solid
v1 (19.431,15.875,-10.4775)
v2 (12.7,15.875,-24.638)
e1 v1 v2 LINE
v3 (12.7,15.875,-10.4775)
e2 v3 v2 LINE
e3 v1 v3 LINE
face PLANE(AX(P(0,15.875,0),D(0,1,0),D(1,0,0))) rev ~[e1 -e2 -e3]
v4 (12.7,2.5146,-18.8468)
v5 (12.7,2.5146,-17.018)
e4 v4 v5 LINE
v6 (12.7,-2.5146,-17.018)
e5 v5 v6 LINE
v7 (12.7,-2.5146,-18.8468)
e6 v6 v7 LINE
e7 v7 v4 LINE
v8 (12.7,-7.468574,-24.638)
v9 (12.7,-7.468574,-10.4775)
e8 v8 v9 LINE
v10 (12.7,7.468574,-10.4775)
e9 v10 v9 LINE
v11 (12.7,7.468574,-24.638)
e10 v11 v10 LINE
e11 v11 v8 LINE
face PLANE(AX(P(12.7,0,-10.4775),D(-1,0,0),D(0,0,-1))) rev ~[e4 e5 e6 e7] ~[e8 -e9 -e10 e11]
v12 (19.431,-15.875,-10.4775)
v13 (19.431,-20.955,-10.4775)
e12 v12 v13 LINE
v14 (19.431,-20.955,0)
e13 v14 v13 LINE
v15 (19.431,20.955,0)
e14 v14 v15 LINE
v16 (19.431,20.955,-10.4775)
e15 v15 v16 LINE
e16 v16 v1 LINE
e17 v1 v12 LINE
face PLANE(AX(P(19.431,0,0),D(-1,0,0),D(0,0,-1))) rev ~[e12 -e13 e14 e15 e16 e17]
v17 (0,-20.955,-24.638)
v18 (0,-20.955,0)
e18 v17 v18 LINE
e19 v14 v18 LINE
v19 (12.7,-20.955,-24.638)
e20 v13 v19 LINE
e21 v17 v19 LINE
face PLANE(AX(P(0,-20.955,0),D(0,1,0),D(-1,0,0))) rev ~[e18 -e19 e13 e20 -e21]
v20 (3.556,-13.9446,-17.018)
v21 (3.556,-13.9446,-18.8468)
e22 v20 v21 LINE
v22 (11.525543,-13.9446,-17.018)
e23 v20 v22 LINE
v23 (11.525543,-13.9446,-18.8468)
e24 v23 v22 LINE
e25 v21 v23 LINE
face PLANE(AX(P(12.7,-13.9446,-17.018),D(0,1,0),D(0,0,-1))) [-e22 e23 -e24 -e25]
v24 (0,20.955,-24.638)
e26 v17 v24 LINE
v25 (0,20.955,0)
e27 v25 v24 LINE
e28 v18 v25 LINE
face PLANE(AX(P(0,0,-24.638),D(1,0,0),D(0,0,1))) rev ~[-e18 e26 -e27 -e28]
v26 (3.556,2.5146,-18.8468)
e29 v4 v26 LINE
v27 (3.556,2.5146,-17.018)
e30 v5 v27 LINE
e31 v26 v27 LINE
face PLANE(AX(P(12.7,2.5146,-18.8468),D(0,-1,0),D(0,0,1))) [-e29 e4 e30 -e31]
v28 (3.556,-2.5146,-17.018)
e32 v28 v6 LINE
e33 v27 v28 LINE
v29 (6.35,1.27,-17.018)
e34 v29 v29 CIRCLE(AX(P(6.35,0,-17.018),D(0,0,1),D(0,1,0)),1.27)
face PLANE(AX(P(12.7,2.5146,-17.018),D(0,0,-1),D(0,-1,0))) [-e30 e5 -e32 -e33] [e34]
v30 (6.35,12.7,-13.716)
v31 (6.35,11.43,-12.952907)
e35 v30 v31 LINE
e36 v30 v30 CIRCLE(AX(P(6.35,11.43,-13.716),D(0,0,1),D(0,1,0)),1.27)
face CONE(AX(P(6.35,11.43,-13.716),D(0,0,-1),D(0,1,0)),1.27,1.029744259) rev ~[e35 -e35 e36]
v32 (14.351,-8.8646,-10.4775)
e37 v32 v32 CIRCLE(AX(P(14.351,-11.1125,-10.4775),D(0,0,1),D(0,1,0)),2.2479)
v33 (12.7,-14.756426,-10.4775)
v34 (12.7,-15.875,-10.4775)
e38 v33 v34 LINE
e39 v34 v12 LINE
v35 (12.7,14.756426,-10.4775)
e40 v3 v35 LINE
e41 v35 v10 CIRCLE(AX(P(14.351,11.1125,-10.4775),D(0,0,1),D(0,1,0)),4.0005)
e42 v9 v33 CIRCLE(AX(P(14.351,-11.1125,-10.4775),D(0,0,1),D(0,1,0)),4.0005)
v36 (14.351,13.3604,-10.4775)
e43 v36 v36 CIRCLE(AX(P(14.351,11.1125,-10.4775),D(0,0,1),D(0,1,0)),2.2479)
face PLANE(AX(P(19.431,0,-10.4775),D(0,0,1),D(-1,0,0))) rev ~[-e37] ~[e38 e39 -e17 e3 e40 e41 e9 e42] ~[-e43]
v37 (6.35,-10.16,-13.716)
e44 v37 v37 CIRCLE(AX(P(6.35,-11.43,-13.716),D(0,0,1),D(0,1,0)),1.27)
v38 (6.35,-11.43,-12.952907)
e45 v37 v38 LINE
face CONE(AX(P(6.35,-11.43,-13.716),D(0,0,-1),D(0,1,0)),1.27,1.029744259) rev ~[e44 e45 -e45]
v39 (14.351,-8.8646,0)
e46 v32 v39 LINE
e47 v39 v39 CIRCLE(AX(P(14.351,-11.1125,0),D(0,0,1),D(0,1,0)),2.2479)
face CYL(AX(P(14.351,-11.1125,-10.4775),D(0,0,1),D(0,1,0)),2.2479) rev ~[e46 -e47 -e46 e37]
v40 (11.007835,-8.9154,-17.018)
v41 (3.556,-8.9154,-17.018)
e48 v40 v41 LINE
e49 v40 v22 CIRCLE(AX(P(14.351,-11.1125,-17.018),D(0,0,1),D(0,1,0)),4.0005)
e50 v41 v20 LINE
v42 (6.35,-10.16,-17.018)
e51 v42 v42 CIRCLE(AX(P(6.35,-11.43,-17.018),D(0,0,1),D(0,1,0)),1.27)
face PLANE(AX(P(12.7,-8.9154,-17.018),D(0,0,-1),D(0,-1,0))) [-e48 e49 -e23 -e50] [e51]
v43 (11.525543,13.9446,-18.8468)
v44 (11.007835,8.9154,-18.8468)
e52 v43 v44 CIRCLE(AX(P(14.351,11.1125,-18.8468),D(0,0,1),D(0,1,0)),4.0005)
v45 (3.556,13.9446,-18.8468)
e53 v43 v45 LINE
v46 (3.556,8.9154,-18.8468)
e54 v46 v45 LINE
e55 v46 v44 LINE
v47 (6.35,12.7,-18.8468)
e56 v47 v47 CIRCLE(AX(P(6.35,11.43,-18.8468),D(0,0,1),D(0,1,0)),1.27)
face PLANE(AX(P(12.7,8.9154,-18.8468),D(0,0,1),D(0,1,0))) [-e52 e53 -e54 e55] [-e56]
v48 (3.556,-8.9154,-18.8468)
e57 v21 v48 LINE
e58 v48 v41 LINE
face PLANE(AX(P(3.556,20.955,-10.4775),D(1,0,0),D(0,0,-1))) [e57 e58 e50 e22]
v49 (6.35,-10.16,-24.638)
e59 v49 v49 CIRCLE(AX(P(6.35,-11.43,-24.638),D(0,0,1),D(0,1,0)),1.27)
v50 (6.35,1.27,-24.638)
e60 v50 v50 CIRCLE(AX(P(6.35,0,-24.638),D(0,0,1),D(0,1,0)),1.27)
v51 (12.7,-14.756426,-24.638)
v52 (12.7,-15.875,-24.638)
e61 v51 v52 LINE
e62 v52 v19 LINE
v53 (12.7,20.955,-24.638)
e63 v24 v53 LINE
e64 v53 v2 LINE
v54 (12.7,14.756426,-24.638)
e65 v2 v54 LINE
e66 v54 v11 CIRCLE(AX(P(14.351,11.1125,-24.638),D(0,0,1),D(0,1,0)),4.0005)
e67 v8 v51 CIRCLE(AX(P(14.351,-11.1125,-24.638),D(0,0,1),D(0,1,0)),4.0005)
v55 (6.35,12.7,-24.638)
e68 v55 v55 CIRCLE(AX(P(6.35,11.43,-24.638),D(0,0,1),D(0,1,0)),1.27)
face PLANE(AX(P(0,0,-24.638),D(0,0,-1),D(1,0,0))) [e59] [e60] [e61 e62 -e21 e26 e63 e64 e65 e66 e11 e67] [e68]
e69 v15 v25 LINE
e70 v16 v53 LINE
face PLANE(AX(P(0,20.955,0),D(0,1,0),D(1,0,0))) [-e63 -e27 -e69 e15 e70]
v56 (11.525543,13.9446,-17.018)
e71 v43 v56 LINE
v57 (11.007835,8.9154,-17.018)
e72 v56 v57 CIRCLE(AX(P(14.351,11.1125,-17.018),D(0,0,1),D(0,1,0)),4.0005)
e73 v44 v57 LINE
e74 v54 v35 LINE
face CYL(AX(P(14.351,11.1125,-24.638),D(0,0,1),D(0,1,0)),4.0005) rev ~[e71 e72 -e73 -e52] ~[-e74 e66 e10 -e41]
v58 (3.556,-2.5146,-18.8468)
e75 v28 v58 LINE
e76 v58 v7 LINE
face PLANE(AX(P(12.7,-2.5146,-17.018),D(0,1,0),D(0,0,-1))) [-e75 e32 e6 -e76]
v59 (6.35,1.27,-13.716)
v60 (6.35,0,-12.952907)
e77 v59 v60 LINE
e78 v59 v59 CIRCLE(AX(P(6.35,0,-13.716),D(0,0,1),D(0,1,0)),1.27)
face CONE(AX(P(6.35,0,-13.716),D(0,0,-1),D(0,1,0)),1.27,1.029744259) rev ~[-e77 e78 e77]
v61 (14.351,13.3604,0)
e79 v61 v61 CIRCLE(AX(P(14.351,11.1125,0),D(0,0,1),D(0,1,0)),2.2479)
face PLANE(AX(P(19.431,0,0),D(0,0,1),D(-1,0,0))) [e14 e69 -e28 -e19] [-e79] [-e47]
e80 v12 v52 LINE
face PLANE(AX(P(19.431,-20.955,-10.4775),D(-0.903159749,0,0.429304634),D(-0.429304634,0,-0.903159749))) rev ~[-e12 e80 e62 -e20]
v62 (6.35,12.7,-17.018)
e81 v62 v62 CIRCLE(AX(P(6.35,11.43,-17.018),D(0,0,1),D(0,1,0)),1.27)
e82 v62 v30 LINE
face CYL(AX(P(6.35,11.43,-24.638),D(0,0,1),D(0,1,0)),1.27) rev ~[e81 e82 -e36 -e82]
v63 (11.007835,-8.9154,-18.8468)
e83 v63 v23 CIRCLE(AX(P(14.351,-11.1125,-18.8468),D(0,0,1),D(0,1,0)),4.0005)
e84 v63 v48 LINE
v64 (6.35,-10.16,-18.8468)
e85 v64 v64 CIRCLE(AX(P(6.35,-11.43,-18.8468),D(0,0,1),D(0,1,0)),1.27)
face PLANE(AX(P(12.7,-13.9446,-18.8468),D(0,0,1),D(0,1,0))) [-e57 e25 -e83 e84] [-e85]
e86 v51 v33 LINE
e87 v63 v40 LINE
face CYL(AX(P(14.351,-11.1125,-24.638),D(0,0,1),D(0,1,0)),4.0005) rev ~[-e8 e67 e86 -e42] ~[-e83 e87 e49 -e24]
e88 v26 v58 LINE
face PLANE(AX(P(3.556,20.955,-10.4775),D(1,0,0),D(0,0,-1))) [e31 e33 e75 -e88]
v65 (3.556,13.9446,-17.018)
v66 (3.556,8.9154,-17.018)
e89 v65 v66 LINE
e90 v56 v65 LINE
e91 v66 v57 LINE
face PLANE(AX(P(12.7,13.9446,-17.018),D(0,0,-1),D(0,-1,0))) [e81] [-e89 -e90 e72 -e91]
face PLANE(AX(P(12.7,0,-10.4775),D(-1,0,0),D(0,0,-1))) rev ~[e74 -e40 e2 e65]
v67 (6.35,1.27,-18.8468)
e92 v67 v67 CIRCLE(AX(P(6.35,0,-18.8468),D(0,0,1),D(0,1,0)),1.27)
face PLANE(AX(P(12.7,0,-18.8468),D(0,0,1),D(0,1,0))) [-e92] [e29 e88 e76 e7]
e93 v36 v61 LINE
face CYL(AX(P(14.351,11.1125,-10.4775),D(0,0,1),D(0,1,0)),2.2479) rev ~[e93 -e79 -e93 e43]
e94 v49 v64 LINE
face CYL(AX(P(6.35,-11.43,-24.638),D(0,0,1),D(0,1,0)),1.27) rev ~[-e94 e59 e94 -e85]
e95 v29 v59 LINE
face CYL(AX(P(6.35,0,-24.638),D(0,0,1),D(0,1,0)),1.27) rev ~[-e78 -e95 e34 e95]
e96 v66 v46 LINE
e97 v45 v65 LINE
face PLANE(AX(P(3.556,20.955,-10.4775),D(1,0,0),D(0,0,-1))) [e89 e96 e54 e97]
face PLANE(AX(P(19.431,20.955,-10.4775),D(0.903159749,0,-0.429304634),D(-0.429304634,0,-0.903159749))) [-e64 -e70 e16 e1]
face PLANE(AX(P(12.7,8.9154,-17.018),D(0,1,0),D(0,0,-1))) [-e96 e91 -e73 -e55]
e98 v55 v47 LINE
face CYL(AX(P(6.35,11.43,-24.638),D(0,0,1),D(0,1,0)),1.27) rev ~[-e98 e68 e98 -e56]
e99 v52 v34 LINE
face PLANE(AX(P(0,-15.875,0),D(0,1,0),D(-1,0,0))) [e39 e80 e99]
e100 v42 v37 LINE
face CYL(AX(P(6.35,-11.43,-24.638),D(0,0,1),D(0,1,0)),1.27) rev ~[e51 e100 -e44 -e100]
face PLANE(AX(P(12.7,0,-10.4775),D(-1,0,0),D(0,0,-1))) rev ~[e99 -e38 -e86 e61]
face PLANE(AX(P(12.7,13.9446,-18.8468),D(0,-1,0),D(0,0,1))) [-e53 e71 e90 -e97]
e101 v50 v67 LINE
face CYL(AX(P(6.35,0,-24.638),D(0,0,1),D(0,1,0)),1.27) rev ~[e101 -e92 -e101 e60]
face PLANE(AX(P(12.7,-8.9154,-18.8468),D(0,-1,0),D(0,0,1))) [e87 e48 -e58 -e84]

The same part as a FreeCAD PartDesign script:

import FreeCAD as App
import Part
import Sketcher
Q = App.Units.Quantity

doc = App.newDocument("Part")
body = doc.addObject("PartDesign::Body", "Body")

# Sketch on XZ plane
sketch1 = body.newObject("Sketcher::SketchObject", "Sketch")
sketch1.AttachmentSupport = (doc.getObject("XZ_Plane"), [""])
sketch1.MapMode = "FlatFace"
sketch1.addGeometry([
    Part.LineSegment(App.Vector(12.7, -24.638, 0), App.Vector(0, -24.638, 0)),  # 0
    Part.LineSegment(App.Vector(0, -24.638, 0), App.Vector(0, 0, 0)),  # 1
    Part.LineSegment(App.Vector(0, 0, 0), App.Vector(19.431, 0, 0)),  # 2
    Part.LineSegment(App.Vector(19.431, 0, 0), App.Vector(19.431, -10.4775, 0)),  # 3
    Part.LineSegment(App.Vector(19.431, -10.4775, 0), App.Vector(12.7, -10.4775, 0)),  # 4
    Part.LineSegment(App.Vector(12.7, -10.4775, 0), App.Vector(12.7, -24.638, 0)),  # 5
], False)
sketch1.addConstraint([
    Sketcher.Constraint("Coincident", 0, 2, 1, 1),
    Sketcher.Constraint("Coincident", 1, 2, 2, 1),
    Sketcher.Constraint("Coincident", 2, 2, 3, 1),
    Sketcher.Constraint("Coincident", 3, 2, 4, 1),
    Sketcher.Constraint("Coincident", 4, 2, 5, 1),
    Sketcher.Constraint("Coincident", 5, 2, 0, 1),
    Sketcher.Constraint("Horizontal", 0),
    Sketcher.Constraint("Vertical", 1),
    Sketcher.Constraint("Horizontal", 2),
    Sketcher.Constraint("Vertical", 3),
    Sketcher.Constraint("Horizontal", 4),
    Sketcher.Constraint("Vertical", 5),
    Sketcher.Constraint("Coincident", 1, 2, -1, 1),
    Sketcher.Constraint("DistanceX", 0, 2, 0, 1, Q("0.5 in")),
    Sketcher.Constraint("DistanceY", 1, 1, 1, 2, Q("0.97 in")),
    Sketcher.Constraint("DistanceX", 2, 1, 2, 2, Q("0.765 in")),
    Sketcher.Constraint("DistanceY", 3, 2, 3, 1, Q("0.4125 in")),
])
pad1 = body.newObject("PartDesign::Pad", "Pad")
pad1.Profile = sketch1
pad1.Length = Q("1.65 in")
pad1.Midplane = True

# Sketch on XY plane
sketch2 = body.newObject("Sketcher::SketchObject", "Sketch001")
sketch2.AttachmentSupport = (doc.getObject("XY_Plane"), [""])
sketch2.MapMode = "FlatFace"
sketch2.AttachmentOffset = App.Placement(App.Vector(0, 0, -0.97 * 25.4), App.Rotation())
sketch2.addGeometry([
    Part.Circle(App.Vector(14.351, 11.1125, 0), App.Vector(0, 0, 1), 2.2479),
    Part.Circle(App.Vector(14.351, -11.1125, 0), App.Vector(0, 0, 1), 2.2479),
], False)
sketch2.addConstraint([
    Sketcher.Constraint("Equal", 0, 1),
    Sketcher.Constraint("Symmetric", 0, 3, 1, 3, -1),
    Sketcher.Constraint("Diameter", 0, Q("0.177 in")),
    Sketcher.Constraint("DistanceX", -1, 1, 0, 3, Q("0.565 in")),
    Sketcher.Constraint("DistanceY", -1, 1, 0, 3, Q("0.4375 in")),
])
doc.recompute()
hole = body.newObject("PartDesign::Hole", "Hole")
hole.Profile = sketch2
hole.ThreadType = "None"
hole.Diameter = Q("0.177 in")
hole.DepthType = "ThroughAll"
hole.HoleCutType = "Counterbore"
hole.HoleCutDiameter = Q("0.315 in")
hole.HoleCutDepth = Q("0.5575 in")
hole.Reversed = True

# Sketch on XZ plane
sketch3 = body.newObject("Sketcher::SketchObject", "Sketch002")
sketch3.AttachmentSupport = (doc.getObject("XZ_Plane"), [""])
sketch3.MapMode = "FlatFace"
sketch3.AttachmentOffset = App.Placement(App.Vector(0, 0, 0.825 * 25.4), App.Rotation())
sketch3.addGeometry([
    Part.LineSegment(App.Vector(19.431, -10.4775, 0), App.Vector(12.7, -24.638, 0)),
    Part.LineSegment(App.Vector(12.7, -24.638, 0), App.Vector(12.7, -10.4775, 0)),
    Part.LineSegment(App.Vector(12.7, -10.4775, 0), App.Vector(19.431, -10.4775, 0)),
], False)
sketch3.addConstraint([
    Sketcher.Constraint("Coincident", 0, 2, 1, 1),
    Sketcher.Constraint("Coincident", 1, 2, 2, 1),
    Sketcher.Constraint("Coincident", 2, 2, 0, 1),
    Sketcher.Constraint("Vertical", 1),
    Sketcher.Constraint("Horizontal", 2),
    Sketcher.Constraint("DistanceX", -1, 1, 0, 2, Q("0.5 in")),
    Sketcher.Constraint("DistanceX", 2, 1, 2, 2, Q("0.265 in")),
    Sketcher.Constraint("DistanceY", 0, 2, -1, 1, Q("0.97 in")),
    Sketcher.Constraint("DistanceY", 1, 1, 1, 2, Q("0.5575 in")),
])
pad2 = body.newObject("PartDesign::Pad", "Pad001")
pad2.Profile = sketch3
pad2.Length = Q("0.2 in")
pad2.Reversed = True

# Sketch on XY plane
sketch4 = body.newObject("Sketcher::SketchObject", "Sketch003")
sketch4.AttachmentSupport = (doc.getObject("XY_Plane"), [""])
sketch4.MapMode = "FlatFace"
sketch4.AttachmentOffset = App.Placement(App.Vector(0, 0, -0.97 * 25.4), App.Rotation())
sketch4.addGeometry([
    Part.Circle(App.Vector(6.35, 11.43, 0), App.Vector(0, 0, 1), 1.27),
    Part.Circle(App.Vector(6.35, -11.43, 0), App.Vector(0, 0, 1), 1.27),
    Part.Circle(App.Vector(6.35, 0, 0), App.Vector(0, 0, 1), 1.27),
], False)
sketch4.addConstraint([
    Sketcher.Constraint("Equal", 0, 1),
    Sketcher.Constraint("Equal", 1, 2),
    Sketcher.Constraint("Symmetric", 0, 3, 1, 3, -1),
    Sketcher.Constraint("PointOnObject", 2, 3, -1),
    Sketcher.Constraint("Vertical", 1, 3, 2, 3),
    Sketcher.Constraint("Diameter", 0, Q("0.1 in")),
    Sketcher.Constraint("DistanceY", 1, 3, 0, 3, Q("0.9 in")),
    Sketcher.Constraint("DistanceX", -1, 1, 0, 3, Q("0.25 in")),
])
doc.recompute()
hole2 = body.newObject("PartDesign::Hole", "Hole001")
hole2.Profile = sketch4
hole2.ThreadType = "None"
hole2.Diameter = Q("0.1 in")
hole2.DepthType = "Dimension"
hole2.Depth = Q("0.43 in")
hole2.DrillPoint = "Angled"
hole2.DrillPointAngle = 118
hole2.Reversed = True

# Sketch on YZ plane
sketch5 = body.newObject("Sketcher::SketchObject", "Sketch004")
sketch5.AttachmentSupport = (doc.getObject("YZ_Plane"), [""])
sketch5.MapMode = "FlatFace"
sketch5.AttachmentOffset = App.Placement(App.Vector(0, 0, 0.5 * 25.4), App.Rotation())
sketch5.addGeometry([
    Part.LineSegment(App.Vector(2.5146, -17.018, 0), App.Vector(-2.5146, -17.018, 0)),  # 0
    Part.LineSegment(App.Vector(-2.5146, -17.018, 0), App.Vector(-2.5146, -18.8468, 0)),  # 1
    Part.LineSegment(App.Vector(-2.5146, -18.8468, 0), App.Vector(2.5146, -18.8468, 0)),  # 2
    Part.LineSegment(App.Vector(2.5146, -18.8468, 0), App.Vector(2.5146, -17.018, 0)),  # 3
    Part.LineSegment(App.Vector(13.9446, -17.018, 0), App.Vector(8.9154, -17.018, 0)),  # 4
    Part.LineSegment(App.Vector(8.9154, -17.018, 0), App.Vector(8.9154, -18.8468, 0)),  # 5
    Part.LineSegment(App.Vector(8.9154, -18.8468, 0), App.Vector(13.9446, -18.8468, 0)),  # 6
    Part.LineSegment(App.Vector(13.9446, -18.8468, 0), App.Vector(13.9446, -17.018, 0)),  # 7
    Part.LineSegment(App.Vector(-8.9154, -17.018, 0), App.Vector(-13.9446, -17.018, 0)),  # 8
    Part.LineSegment(App.Vector(-13.9446, -17.018, 0), App.Vector(-13.9446, -18.8468, 0)),  # 9
    Part.LineSegment(App.Vector(-13.9446, -18.8468, 0), App.Vector(-8.9154, -18.8468, 0)),  # 10
    Part.LineSegment(App.Vector(-8.9154, -18.8468, 0), App.Vector(-8.9154, -17.018, 0)),  # 11
], False)
sketch5.addConstraint([
    Sketcher.Constraint("Coincident", 0, 2, 1, 1),
    Sketcher.Constraint("Coincident", 1, 2, 2, 1),
    Sketcher.Constraint("Coincident", 2, 2, 3, 1),
    Sketcher.Constraint("Coincident", 3, 2, 0, 1),
    Sketcher.Constraint("Coincident", 4, 2, 5, 1),
    Sketcher.Constraint("Coincident", 5, 2, 6, 1),
    Sketcher.Constraint("Coincident", 6, 2, 7, 1),
    Sketcher.Constraint("Coincident", 7, 2, 4, 1),
    Sketcher.Constraint("Coincident", 8, 2, 9, 1),
    Sketcher.Constraint("Coincident", 9, 2, 10, 1),
    Sketcher.Constraint("Coincident", 10, 2, 11, 1),
    Sketcher.Constraint("Coincident", 11, 2, 8, 1),
    Sketcher.Constraint("Horizontal", 0),
    Sketcher.Constraint("Vertical", 1),
    Sketcher.Constraint("Horizontal", 2),
    Sketcher.Constraint("Vertical", 3),
    Sketcher.Constraint("Horizontal", 4),
    Sketcher.Constraint("Vertical", 5),
    Sketcher.Constraint("Horizontal", 6),
    Sketcher.Constraint("Vertical", 7),
    Sketcher.Constraint("Horizontal", 8),
    Sketcher.Constraint("Vertical", 9),
    Sketcher.Constraint("Horizontal", 10),
    Sketcher.Constraint("Vertical", 11),
    Sketcher.Constraint("Symmetric", 7, 2, 8, 2, -2),
    Sketcher.Constraint("Symmetric", 5, 2, 10, 2, -2),
    Sketcher.Constraint("Horizontal", 3, 2, 4, 2),
    Sketcher.Constraint("Horizontal", 2, 2, 5, 2),
    Sketcher.Constraint("Equal", 2, 4),
    Sketcher.Constraint("DistanceX", 0, 2, 0, 1, Q("0.198 in")),
    Sketcher.Constraint("DistanceY", 1, 2, 1, 1, Q("0.072 in")),
    Sketcher.Constraint("DistanceX", 0, 2, 4, 2, Q("0.45 in")),
    Sketcher.Constraint("DistanceX", 8, 2, 0, 2, Q("0.45 in")),
    Sketcher.Constraint("DistanceY", 0, 2, -1, 1, Q("0.67 in")),
])
pocket1 = body.newObject("PartDesign::Pocket", "Pocket")
pocket1.Profile = sketch5
pocket1.Type = "TwoLengths"
pocket1.Length = Q("0.4 in")
pocket1.Length2 = Q("0.36 in")
pocket1.Reversed = True

# Sketch on XZ plane
sketch6 = body.newObject("Sketcher::SketchObject", "Sketch005")
sketch6.AttachmentSupport = (doc.getObject("XZ_Plane"), [""])
sketch6.MapMode = "FlatFace"
sketch6.AttachmentOffset = App.Placement(App.Vector(0, 0, -0.825 * 25.4), App.Rotation())
sketch6.addGeometry([
    Part.LineSegment(App.Vector(12.7, -24.638, 0), App.Vector(12.7, -10.4775, 0)),
    Part.LineSegment(App.Vector(12.7, -10.4775, 0), App.Vector(19.431, -10.4775, 0)),
    Part.LineSegment(App.Vector(19.431, -10.4775, 0), App.Vector(12.7, -24.638, 0)),
], False)
sketch6.addConstraint([
    Sketcher.Constraint("Coincident", 0, 2, 1, 1),
    Sketcher.Constraint("Coincident", 1, 2, 2, 1),
    Sketcher.Constraint("Coincident", 2, 2, 0, 1),
    Sketcher.Constraint("Vertical", 0),
    Sketcher.Constraint("Horizontal", 1),
    Sketcher.Constraint("DistanceX", -1, 1, 0, 2, Q("0.5 in")),
    Sketcher.Constraint("DistanceX", 1, 1, 1, 2, Q("0.265 in")),
    Sketcher.Constraint("DistanceY", 2, 2, -1, 1, Q("0.97 in")),
    Sketcher.Constraint("DistanceY", 0, 1, 0, 2, Q("0.5575 in")),
])
pad3 = body.newObject("PartDesign::Pad", "Pad002")
pad3.Profile = sketch6
pad3.Length = Q("0.2 in")

doc.recompute()
